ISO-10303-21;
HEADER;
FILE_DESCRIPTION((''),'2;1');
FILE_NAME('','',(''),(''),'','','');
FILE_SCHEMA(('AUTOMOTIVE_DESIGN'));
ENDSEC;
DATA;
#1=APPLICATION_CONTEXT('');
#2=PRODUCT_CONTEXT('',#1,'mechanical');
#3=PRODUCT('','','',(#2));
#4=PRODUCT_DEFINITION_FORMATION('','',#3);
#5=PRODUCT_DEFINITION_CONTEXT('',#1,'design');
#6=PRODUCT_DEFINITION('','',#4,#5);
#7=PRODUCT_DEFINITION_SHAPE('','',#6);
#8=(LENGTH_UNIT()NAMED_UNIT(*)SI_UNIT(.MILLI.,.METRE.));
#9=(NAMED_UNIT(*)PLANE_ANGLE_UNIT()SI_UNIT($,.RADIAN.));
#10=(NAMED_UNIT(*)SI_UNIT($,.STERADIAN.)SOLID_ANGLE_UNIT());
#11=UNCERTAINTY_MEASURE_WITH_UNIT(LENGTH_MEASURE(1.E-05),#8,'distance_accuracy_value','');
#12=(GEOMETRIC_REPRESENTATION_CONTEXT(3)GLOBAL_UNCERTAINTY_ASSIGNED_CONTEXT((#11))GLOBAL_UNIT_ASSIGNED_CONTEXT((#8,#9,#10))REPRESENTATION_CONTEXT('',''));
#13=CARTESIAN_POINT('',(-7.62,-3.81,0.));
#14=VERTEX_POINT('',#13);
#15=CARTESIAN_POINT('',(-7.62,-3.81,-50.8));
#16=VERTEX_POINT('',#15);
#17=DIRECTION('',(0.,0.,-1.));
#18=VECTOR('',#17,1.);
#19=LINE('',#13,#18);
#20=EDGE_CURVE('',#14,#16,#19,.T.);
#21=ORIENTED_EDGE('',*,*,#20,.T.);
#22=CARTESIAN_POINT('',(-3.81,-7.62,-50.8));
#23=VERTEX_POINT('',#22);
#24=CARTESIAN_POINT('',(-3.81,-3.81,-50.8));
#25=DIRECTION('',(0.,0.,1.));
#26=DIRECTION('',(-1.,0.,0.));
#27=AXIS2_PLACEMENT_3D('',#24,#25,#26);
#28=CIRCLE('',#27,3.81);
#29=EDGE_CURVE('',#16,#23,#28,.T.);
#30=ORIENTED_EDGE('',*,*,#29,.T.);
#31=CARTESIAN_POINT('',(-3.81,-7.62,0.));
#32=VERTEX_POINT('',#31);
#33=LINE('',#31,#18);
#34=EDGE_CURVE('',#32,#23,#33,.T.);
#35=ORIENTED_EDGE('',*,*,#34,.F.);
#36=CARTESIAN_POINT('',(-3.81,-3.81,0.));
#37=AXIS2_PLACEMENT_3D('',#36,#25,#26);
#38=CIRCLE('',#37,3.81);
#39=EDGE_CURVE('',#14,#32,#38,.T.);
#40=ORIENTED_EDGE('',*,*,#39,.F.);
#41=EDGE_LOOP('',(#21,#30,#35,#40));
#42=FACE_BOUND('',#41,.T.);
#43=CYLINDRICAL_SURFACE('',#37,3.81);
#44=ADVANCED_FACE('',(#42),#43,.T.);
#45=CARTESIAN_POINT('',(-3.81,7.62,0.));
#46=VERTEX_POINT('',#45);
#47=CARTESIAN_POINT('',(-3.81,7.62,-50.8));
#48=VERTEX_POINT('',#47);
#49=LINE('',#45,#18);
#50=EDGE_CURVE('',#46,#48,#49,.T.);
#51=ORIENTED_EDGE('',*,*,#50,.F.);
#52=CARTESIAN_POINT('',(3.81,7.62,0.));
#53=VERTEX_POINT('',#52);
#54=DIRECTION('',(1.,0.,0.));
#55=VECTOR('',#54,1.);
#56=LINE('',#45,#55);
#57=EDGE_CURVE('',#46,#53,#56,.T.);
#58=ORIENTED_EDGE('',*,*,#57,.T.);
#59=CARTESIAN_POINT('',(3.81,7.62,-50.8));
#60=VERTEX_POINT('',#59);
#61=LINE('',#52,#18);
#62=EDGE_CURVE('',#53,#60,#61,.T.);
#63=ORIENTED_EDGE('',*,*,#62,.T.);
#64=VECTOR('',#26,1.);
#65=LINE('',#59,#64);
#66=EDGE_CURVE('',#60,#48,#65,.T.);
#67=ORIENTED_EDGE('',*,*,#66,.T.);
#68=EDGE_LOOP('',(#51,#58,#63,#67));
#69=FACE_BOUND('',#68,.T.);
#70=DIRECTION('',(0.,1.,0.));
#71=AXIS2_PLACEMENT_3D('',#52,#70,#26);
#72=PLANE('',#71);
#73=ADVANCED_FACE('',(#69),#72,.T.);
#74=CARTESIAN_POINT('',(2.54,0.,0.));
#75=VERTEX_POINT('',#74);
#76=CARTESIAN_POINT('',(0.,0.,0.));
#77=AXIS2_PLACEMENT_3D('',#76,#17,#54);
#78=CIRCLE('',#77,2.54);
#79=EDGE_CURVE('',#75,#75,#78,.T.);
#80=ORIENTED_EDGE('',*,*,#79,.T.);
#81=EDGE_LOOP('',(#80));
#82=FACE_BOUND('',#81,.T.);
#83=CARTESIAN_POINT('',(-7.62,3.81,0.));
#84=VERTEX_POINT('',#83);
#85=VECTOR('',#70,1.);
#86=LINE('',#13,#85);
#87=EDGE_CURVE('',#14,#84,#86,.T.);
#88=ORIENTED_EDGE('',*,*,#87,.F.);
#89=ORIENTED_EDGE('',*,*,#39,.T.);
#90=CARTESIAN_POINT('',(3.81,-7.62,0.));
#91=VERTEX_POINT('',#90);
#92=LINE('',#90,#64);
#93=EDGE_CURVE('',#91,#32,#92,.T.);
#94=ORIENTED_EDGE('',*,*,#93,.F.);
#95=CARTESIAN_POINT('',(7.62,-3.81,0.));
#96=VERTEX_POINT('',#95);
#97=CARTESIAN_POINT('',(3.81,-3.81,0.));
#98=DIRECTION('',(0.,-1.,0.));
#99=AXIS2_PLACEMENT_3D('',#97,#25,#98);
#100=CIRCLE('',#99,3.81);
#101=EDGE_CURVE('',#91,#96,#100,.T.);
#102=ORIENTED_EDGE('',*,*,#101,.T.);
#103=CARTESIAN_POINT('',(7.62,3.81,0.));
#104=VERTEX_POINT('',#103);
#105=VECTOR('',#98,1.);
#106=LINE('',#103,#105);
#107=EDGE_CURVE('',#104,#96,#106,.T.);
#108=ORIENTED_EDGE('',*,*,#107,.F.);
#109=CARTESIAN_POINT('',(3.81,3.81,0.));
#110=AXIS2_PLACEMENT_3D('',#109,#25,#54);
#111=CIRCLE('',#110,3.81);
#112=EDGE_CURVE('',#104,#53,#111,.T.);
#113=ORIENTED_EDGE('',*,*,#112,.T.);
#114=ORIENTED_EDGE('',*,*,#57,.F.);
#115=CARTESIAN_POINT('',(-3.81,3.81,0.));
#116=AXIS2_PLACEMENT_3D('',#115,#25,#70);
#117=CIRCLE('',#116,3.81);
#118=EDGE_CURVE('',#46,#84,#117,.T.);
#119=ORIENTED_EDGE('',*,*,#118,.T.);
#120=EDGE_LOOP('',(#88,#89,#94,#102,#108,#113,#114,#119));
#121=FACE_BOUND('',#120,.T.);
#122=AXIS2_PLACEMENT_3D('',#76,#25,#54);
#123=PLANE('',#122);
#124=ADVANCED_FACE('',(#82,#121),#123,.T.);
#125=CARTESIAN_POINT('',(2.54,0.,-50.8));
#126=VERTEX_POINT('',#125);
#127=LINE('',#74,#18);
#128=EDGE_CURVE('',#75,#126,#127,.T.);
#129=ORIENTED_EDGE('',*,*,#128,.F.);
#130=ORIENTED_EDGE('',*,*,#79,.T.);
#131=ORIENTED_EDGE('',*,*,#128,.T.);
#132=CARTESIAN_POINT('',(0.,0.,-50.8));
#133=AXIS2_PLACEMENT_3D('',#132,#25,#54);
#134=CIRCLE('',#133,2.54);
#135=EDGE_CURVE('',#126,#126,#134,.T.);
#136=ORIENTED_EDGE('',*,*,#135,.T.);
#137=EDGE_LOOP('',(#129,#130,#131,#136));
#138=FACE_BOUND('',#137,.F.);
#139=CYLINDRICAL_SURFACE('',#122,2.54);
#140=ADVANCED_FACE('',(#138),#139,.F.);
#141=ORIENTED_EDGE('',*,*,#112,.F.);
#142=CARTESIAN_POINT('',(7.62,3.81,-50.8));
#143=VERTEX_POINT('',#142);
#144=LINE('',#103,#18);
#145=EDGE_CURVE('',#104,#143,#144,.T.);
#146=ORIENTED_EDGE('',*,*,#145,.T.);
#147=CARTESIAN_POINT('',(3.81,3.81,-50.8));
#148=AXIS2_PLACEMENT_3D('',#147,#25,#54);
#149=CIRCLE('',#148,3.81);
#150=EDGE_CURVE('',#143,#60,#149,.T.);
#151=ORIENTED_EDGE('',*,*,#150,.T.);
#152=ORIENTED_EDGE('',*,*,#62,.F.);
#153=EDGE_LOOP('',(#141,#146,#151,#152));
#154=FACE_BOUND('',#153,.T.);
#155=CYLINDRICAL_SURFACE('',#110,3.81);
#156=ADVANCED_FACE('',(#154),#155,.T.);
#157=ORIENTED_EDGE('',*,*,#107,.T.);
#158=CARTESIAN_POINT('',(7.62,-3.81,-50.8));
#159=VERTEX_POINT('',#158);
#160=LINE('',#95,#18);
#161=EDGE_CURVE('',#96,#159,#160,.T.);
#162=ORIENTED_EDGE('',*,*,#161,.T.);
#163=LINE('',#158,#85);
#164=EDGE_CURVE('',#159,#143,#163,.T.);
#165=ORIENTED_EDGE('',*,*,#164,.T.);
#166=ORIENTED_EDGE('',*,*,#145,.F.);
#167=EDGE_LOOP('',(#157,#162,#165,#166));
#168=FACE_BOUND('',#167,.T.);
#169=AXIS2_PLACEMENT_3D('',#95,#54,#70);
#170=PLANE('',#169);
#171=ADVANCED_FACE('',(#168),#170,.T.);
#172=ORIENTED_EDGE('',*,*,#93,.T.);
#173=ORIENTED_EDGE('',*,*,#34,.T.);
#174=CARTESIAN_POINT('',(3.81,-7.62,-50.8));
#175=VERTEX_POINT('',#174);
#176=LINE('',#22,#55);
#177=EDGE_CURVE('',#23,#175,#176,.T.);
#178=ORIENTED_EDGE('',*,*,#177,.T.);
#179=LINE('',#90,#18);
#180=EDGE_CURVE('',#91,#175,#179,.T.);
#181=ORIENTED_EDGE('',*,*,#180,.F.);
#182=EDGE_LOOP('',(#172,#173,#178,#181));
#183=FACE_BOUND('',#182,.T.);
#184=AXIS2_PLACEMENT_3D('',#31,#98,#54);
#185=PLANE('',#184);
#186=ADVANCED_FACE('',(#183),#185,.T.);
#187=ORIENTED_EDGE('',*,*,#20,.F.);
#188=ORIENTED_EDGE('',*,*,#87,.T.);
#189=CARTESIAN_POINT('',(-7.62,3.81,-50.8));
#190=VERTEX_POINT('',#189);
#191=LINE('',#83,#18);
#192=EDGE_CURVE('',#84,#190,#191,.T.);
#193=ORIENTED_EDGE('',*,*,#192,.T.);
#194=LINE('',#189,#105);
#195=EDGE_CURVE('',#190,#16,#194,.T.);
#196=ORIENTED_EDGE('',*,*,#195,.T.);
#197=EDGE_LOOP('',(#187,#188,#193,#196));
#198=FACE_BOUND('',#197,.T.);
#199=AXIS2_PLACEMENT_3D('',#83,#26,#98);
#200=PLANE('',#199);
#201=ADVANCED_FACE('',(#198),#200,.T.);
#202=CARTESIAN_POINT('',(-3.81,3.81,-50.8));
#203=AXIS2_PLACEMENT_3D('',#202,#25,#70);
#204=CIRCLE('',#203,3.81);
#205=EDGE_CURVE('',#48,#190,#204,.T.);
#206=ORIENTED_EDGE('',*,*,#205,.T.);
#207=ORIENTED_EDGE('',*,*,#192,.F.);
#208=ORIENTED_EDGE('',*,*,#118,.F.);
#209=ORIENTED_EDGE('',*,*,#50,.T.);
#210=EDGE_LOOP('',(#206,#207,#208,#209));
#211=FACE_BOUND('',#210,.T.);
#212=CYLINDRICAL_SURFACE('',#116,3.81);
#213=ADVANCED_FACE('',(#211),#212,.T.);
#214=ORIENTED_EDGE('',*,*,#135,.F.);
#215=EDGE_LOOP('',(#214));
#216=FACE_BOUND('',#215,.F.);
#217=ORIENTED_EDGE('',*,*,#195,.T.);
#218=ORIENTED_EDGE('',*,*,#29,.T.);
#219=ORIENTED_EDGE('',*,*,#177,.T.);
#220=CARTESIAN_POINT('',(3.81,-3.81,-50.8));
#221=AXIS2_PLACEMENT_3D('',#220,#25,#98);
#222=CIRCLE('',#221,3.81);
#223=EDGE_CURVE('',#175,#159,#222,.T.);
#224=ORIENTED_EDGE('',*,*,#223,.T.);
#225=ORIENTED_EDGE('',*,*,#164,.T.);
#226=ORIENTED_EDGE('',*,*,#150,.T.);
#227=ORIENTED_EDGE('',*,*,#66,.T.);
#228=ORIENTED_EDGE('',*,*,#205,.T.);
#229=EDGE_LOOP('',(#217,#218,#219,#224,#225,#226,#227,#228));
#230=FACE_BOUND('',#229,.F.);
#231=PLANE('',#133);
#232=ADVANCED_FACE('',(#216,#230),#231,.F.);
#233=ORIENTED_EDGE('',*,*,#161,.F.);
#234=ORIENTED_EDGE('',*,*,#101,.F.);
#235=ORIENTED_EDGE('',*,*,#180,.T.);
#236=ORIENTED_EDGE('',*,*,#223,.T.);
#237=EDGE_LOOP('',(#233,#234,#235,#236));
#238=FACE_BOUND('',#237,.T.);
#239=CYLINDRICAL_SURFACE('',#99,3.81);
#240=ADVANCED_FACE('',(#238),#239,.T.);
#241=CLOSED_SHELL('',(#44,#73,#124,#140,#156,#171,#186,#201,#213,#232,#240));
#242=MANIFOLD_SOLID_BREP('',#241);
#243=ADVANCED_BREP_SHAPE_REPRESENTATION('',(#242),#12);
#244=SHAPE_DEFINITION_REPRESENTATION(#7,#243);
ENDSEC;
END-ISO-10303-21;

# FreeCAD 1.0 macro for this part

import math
import FreeCAD as App
import Part
import Sketcher
Q = App.Units.Quantity

doc = App.newDocument("Part")
body = doc.addObject("PartDesign::Body", "Body")

sketch1 = doc.addObject("Sketcher::SketchObject", "Sketch")
body.addObject(sketch1)
sketch1.AttachmentSupport = (doc.XY_Plane, [""])
sketch1.MapMode = "FlatFace"
sketch1.addGeometry([
    Part.ArcOfCircle(Part.Circle(App.Vector(-3.8, 3.8, 0), App.Vector(0, 0, 1), 3.8), math.radians(90), math.radians(180)),
    Part.LineSegment(App.Vector(-7.6, 3.8, 0), App.Vector(-7.6, -3.8, 0)),
    Part.ArcOfCircle(Part.Circle(App.Vector(-3.8, -3.8, 0), App.Vector(0, 0, 1), 3.8), math.radians(180), math.radians(270)),
    Part.LineSegment(App.Vector(-3.8, -7.6, 0), App.Vector(3.8, -7.6, 0)),
    Part.ArcOfCircle(Part.Circle(App.Vector(3.8, -3.8, 0), App.Vector(0, 0, 1), 3.8), math.radians(-90), math.radians(0)),
    Part.LineSegment(App.Vector(7.6, -3.8, 0), App.Vector(7.6, 3.8, 0)),
    Part.ArcOfCircle(Part.Circle(App.Vector(3.8, 3.8, 0), App.Vector(0, 0, 1), 3.8), math.radians(0), math.radians(90)),
    Part.LineSegment(App.Vector(3.8, 7.6, 0), App.Vector(-3.8, 7.6, 0)),
    Part.Circle(App.Vector(0, 0, 0), App.Vector(0, 0, 1), 2.5),
], False)
sketch1.addConstraint([
    Sketcher.Constraint("Tangent", 0, 2, 1, 1),
    Sketcher.Constraint("Tangent", 1, 2, 2, 1),
    Sketcher.Constraint("Tangent", 2, 2, 3, 1),
    Sketcher.Constraint("Tangent", 3, 2, 4, 1),
    Sketcher.Constraint("Tangent", 4, 2, 5, 1),
    Sketcher.Constraint("Tangent", 5, 2, 6, 1),
    Sketcher.Constraint("Tangent", 6, 2, 7, 1),
    Sketcher.Constraint("Tangent", 7, 2, 0, 1),
    Sketcher.Constraint("Vertical", 1),
    Sketcher.Constraint("Horizontal", 3),
    Sketcher.Constraint("Vertical", 5),
    Sketcher.Constraint("Horizontal", 7),
    Sketcher.Constraint("Coincident", 8, 3, -1, 1),
    Sketcher.Constraint("Equal", 0, 2),
    Sketcher.Constraint("Equal", 2, 4),
    Sketcher.Constraint("Equal", 4, 6),
    Sketcher.Constraint("Symmetric", 0, 3, 4, 3, -1, 1),
    Sketcher.Constraint("Equal", 7, 1),
    Sketcher.Constraint("Diameter", 8, Q("0.2 in")),
    Sketcher.Constraint("Radius", 0, Q("0.15 in")),
    Sketcher.Constraint("DistanceX", 3, 1, 3, 2, Q("0.3 in")),
])
pad1 = doc.addObject("PartDesign::Pad", "Pad")
body.addObject(pad1)
pad1.Profile = sketch1
pad1.Length = Q("2 in")
pad1.Reversed = True

sketch2 = doc.addObject("Sketcher::SketchObject", "Sketch001")
body.addObject(sketch2)
sketch2.AttachmentSupport = (doc.XZ_Plane, [""])
sketch2.MapMode = "FlatFace"
sketch2.AttachmentOffset = App.Placement(App.Vector(0, 0, -0.3 * 25.4), App.Rotation())
sketch2.addGeometry([
    Part.LineSegment(App.Vector(1, 0, 0), App.Vector(-1, 0, 0)),
    Part.ArcOfCircle(Part.Circle(App.Vector(0, 0, 0), App.Vector(0, 0, 1), 1), math.radians(0), math.radians(180)),
], False)
sketch2.addConstraint([
    Sketcher.Constraint("Coincident", 0, 1, 1, 1),
    Sketcher.Constraint("Coincident", 1, 2, 0, 2),
    Sketcher.Constraint("Horizontal", 0),
    Sketcher.Constraint("Coincident", 1, 3, -1, 1),
    Sketcher.Constraint("PointOnObject", 0, 1, -1),
    Sketcher.Constraint("Radius", 1, Q("0.0375 in")),
])
pocket1 = doc.addObject("PartDesign::Pocket", "Pocket")
body.addObject(pocket1)
pocket1.Profile = sketch2
pocket1.Type = "ThroughAll"
pocket1.Reversed = True

sketch3 = doc.addObject("Sketcher::SketchObject", "Sketch002")
body.addObject(sketch3)
sketch3.AttachmentSupport = (doc.YZ_Plane, [""])
sketch3.MapMode = "FlatFace"
sketch3.AttachmentOffset = App.Placement(App.Vector(0, 0, -0.3 * 25.4), App.Rotation())
sketch3.addGeometry([
    Part.LineSegment(App.Vector(1, 0, 0), App.Vector(-1, 0, 0)),
    Part.ArcOfCircle(Part.Circle(App.Vector(0, 0, 0), App.Vector(0, 0, 1), 1), math.radians(0), math.radians(180)),
], False)
sketch3.addConstraint([
    Sketcher.Constraint("Coincident", 0, 1, 1, 1),
    Sketcher.Constraint("Coincident", 1, 2, 0, 2),
    Sketcher.Constraint("Horizontal", 0),
    Sketcher.Constraint("Coincident", 1, 3, -1, 1),
    Sketcher.Constraint("PointOnObject", 0, 1, -1),
    Sketcher.Constraint("Radius", 1, Q("0.0375 in")),
])
pocket2 = doc.addObject("PartDesign::Pocket", "Pocket001")
body.addObject(pocket2)
pocket2.Profile = sketch3
pocket2.Type = "ThroughAll"
pocket2.Reversed = True

doc.recompute()
